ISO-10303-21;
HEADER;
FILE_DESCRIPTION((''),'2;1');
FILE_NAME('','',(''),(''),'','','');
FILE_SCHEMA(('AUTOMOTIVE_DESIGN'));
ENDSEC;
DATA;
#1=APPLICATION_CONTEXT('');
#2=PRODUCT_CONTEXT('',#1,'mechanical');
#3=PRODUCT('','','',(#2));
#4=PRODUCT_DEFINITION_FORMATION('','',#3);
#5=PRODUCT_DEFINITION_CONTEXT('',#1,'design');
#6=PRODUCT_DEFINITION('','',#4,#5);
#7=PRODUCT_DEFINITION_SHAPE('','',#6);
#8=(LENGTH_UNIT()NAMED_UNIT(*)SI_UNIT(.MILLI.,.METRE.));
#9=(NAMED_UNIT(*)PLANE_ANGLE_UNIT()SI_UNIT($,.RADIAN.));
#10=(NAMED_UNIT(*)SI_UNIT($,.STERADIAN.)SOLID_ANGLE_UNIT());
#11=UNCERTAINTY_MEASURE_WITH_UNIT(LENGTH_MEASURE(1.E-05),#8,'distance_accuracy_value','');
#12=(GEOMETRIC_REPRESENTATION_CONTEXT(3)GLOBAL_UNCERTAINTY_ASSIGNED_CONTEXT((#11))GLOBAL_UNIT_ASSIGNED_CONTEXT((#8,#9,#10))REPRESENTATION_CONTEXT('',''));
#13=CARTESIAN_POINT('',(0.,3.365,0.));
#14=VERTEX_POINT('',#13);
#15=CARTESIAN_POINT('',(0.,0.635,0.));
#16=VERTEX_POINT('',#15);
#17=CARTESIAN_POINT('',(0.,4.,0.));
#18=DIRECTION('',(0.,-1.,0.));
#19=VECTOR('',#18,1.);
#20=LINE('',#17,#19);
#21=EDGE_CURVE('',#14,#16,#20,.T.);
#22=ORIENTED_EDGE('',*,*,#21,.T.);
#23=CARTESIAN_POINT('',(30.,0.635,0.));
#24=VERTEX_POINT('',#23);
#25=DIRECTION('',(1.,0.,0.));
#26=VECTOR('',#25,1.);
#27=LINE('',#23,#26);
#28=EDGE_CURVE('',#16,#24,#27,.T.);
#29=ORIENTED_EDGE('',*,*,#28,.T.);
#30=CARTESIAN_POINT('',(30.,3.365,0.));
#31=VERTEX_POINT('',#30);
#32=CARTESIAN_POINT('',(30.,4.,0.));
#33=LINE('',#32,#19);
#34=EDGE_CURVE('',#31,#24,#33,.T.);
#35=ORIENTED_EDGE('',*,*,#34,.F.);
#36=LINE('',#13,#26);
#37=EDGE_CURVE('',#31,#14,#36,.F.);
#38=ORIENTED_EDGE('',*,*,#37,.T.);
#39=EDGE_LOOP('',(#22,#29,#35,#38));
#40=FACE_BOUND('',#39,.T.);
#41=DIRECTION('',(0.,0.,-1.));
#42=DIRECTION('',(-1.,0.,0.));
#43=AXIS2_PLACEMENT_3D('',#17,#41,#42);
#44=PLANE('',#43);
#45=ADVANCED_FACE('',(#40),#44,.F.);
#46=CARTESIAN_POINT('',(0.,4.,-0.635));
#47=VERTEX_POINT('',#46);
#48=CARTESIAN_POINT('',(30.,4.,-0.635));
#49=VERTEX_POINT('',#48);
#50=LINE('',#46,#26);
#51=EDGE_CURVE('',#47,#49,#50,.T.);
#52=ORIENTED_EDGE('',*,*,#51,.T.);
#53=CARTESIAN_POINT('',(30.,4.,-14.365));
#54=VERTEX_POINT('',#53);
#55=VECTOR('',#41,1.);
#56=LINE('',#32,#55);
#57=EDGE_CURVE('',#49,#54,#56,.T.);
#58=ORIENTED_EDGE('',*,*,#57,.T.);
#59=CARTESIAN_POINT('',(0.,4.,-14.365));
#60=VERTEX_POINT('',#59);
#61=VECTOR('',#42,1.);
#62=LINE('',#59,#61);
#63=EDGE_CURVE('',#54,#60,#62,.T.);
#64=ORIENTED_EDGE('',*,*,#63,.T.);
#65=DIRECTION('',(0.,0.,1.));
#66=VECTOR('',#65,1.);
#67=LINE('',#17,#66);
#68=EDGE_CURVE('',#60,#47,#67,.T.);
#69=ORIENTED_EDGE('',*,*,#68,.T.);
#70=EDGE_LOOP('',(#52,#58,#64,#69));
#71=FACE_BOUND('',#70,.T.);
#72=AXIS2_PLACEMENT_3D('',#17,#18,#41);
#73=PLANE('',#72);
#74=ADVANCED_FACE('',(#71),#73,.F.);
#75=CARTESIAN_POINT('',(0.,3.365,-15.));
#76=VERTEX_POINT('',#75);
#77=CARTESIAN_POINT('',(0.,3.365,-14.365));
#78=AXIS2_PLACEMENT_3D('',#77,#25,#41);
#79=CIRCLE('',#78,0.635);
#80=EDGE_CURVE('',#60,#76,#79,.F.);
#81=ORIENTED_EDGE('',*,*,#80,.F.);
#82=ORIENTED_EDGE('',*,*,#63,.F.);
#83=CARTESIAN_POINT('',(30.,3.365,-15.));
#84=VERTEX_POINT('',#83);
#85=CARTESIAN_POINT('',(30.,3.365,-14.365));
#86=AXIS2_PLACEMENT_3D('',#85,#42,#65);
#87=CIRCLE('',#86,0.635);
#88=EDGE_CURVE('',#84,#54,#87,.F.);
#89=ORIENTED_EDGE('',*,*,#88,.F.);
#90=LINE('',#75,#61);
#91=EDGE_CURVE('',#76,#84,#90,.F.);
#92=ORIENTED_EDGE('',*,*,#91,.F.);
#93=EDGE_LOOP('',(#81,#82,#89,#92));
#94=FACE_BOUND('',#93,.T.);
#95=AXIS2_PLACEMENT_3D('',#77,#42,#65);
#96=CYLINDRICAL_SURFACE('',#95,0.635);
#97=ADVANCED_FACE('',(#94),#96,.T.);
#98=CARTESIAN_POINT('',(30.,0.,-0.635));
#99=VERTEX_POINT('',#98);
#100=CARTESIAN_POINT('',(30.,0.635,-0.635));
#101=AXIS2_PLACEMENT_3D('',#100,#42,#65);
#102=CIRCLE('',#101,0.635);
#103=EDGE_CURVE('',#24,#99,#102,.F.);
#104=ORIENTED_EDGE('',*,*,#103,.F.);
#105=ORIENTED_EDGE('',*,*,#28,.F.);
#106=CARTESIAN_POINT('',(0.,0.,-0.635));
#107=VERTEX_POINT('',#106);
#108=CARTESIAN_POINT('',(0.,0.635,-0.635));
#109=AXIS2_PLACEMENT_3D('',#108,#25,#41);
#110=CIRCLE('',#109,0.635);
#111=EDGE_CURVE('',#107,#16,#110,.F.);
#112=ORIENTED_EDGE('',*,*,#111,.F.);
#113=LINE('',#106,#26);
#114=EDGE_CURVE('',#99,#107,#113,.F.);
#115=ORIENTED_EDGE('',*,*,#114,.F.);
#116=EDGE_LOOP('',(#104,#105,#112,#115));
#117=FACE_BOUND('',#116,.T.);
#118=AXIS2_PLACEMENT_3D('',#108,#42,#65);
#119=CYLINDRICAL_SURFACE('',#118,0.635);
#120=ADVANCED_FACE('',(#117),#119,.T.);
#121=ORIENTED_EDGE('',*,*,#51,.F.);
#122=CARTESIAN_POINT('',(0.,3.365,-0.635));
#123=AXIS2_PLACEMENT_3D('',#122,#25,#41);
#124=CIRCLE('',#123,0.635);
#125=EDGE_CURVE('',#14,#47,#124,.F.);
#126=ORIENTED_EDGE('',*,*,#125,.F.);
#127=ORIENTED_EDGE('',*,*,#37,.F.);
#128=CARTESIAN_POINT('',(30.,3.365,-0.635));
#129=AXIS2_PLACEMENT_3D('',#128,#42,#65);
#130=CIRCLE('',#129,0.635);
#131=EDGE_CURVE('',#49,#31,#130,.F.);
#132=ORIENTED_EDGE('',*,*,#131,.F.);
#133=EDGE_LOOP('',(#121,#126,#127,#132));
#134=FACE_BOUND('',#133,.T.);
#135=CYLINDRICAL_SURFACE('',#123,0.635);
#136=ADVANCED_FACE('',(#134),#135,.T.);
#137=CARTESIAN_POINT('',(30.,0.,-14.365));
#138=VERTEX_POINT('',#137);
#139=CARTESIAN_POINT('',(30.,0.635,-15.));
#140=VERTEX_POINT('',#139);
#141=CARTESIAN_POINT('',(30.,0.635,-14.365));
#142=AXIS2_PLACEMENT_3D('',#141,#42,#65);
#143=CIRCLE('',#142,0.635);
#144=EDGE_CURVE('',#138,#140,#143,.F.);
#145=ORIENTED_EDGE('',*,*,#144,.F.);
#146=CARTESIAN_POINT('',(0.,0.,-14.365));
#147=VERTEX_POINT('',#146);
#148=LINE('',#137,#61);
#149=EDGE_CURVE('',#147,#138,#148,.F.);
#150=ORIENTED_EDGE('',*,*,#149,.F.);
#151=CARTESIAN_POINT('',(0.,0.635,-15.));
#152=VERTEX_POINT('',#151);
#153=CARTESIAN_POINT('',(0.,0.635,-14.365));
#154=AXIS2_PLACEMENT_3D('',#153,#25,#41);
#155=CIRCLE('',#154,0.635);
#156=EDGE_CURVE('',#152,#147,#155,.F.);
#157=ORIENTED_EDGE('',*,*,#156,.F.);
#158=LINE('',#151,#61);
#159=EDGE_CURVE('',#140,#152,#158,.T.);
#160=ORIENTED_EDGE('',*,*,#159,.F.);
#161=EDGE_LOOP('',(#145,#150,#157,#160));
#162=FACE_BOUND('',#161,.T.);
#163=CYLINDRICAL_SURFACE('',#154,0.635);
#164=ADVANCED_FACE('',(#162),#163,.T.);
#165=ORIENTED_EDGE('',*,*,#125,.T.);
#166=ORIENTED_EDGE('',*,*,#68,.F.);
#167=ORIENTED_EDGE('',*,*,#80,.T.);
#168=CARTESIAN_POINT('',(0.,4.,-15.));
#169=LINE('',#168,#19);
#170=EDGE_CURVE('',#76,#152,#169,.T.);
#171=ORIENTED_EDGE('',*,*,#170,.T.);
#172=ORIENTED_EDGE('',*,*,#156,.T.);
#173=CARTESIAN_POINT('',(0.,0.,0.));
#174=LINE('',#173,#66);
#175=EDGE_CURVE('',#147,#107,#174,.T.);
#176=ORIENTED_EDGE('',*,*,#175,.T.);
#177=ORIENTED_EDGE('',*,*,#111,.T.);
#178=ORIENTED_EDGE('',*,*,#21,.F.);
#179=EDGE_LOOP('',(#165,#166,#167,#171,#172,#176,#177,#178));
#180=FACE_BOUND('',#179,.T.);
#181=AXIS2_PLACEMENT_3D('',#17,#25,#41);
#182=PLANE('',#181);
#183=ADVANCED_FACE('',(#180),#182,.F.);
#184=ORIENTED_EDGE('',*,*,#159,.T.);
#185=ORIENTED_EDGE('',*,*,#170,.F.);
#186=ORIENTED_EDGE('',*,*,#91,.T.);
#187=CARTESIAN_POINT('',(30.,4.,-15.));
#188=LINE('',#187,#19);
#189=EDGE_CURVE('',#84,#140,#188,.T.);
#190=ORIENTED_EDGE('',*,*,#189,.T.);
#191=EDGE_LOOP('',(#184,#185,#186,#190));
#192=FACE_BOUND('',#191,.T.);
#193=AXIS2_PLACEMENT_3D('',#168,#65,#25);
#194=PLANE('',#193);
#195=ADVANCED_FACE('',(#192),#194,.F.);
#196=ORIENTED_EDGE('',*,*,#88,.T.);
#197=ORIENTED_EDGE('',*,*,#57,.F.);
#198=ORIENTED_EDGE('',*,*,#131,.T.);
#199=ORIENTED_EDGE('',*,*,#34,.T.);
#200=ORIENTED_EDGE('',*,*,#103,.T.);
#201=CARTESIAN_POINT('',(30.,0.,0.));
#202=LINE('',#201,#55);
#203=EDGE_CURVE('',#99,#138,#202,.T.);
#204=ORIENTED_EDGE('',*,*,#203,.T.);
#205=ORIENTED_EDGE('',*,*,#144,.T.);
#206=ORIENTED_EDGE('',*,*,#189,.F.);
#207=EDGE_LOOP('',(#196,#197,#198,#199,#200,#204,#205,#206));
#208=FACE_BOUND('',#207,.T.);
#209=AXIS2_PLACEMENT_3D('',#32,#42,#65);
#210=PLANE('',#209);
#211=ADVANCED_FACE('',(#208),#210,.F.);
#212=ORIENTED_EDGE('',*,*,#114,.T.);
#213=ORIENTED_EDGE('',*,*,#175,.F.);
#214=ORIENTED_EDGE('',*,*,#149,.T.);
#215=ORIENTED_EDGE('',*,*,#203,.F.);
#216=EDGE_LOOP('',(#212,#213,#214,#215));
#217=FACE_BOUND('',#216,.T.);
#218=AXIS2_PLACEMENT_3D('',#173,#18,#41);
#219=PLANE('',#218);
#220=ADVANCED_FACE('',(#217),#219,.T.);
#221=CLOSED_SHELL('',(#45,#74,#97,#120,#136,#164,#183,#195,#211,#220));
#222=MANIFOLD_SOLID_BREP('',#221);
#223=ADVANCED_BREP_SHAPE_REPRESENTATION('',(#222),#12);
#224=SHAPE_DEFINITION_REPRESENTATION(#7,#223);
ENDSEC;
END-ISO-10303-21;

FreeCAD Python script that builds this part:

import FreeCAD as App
import Part
import Sketcher
from FreeCAD import Vector
Q = App.Units.Quantity


def edges_at(feature, points):
    """Names of the edges that pass closest to the given points."""
    edges = feature.Shape.Edges
    near = lambda p: min(range(len(edges)), key=lambda i: edges[i].distToShape(Part.Vertex(*p))[0])
    return sorted({f"Edge{near(p) + 1}" for p in points})


def add_polygon(sketch, points):
    """Adds a closed chain of lines whose ends are joined by coincident constraints."""
    first, n = sketch.GeometryCount, len(points)
    for a, b in zip(points, points[1:] + points[:1]):
        sketch.addGeometry(Part.LineSegment(App.Vector(*a, 0), App.Vector(*b, 0)), False)
    for i in range(n):
        sketch.addConstraint(Sketcher.Constraint("Coincident", first + i, 2, first + (i + 1) % n, 1))

doc = App.newDocument("Part")
body = doc.addObject("PartDesign::Body", "Body")

sketch1 = body.newObject("Sketcher::SketchObject", "Sketch")
sketch1.AttachmentSupport = (doc.getObject("XZ_Plane"), [""])
sketch1.MapMode = "FlatFace"
add_polygon(sketch1, [(0, -15), (0, 0), (30, 0), (30, -15)])
sketch1.addConstraint([
    Sketcher.Constraint("Vertical", 0),
    Sketcher.Constraint("Horizontal", 1),
    Sketcher.Constraint("Vertical", 2),
    Sketcher.Constraint("Horizontal", 3),
    Sketcher.Constraint("Coincident", 0, 2, -1, 1),
    Sketcher.Constraint("DistanceX", 1, 1, 1, 2, Q("30 mm")),
    Sketcher.Constraint("DistanceY", 0, 1, 0, 2, Q("15 mm")),
])
pad1 = body.newObject("PartDesign::Pad", "Pad")
pad1.Profile = sketch1
pad1.Length = 4
pad1.Reversed = True
doc.recompute()

fillet = body.newObject("PartDesign::Fillet", "Fillet")
fillet.Base = (pad1, edges_at(pad1, [
    (15, 4, -15),
    (15, 0, -15),
    (15, 0, 0),
    (15, 4, 0),
]))
fillet.Radius = 0.635

doc.recompute()
